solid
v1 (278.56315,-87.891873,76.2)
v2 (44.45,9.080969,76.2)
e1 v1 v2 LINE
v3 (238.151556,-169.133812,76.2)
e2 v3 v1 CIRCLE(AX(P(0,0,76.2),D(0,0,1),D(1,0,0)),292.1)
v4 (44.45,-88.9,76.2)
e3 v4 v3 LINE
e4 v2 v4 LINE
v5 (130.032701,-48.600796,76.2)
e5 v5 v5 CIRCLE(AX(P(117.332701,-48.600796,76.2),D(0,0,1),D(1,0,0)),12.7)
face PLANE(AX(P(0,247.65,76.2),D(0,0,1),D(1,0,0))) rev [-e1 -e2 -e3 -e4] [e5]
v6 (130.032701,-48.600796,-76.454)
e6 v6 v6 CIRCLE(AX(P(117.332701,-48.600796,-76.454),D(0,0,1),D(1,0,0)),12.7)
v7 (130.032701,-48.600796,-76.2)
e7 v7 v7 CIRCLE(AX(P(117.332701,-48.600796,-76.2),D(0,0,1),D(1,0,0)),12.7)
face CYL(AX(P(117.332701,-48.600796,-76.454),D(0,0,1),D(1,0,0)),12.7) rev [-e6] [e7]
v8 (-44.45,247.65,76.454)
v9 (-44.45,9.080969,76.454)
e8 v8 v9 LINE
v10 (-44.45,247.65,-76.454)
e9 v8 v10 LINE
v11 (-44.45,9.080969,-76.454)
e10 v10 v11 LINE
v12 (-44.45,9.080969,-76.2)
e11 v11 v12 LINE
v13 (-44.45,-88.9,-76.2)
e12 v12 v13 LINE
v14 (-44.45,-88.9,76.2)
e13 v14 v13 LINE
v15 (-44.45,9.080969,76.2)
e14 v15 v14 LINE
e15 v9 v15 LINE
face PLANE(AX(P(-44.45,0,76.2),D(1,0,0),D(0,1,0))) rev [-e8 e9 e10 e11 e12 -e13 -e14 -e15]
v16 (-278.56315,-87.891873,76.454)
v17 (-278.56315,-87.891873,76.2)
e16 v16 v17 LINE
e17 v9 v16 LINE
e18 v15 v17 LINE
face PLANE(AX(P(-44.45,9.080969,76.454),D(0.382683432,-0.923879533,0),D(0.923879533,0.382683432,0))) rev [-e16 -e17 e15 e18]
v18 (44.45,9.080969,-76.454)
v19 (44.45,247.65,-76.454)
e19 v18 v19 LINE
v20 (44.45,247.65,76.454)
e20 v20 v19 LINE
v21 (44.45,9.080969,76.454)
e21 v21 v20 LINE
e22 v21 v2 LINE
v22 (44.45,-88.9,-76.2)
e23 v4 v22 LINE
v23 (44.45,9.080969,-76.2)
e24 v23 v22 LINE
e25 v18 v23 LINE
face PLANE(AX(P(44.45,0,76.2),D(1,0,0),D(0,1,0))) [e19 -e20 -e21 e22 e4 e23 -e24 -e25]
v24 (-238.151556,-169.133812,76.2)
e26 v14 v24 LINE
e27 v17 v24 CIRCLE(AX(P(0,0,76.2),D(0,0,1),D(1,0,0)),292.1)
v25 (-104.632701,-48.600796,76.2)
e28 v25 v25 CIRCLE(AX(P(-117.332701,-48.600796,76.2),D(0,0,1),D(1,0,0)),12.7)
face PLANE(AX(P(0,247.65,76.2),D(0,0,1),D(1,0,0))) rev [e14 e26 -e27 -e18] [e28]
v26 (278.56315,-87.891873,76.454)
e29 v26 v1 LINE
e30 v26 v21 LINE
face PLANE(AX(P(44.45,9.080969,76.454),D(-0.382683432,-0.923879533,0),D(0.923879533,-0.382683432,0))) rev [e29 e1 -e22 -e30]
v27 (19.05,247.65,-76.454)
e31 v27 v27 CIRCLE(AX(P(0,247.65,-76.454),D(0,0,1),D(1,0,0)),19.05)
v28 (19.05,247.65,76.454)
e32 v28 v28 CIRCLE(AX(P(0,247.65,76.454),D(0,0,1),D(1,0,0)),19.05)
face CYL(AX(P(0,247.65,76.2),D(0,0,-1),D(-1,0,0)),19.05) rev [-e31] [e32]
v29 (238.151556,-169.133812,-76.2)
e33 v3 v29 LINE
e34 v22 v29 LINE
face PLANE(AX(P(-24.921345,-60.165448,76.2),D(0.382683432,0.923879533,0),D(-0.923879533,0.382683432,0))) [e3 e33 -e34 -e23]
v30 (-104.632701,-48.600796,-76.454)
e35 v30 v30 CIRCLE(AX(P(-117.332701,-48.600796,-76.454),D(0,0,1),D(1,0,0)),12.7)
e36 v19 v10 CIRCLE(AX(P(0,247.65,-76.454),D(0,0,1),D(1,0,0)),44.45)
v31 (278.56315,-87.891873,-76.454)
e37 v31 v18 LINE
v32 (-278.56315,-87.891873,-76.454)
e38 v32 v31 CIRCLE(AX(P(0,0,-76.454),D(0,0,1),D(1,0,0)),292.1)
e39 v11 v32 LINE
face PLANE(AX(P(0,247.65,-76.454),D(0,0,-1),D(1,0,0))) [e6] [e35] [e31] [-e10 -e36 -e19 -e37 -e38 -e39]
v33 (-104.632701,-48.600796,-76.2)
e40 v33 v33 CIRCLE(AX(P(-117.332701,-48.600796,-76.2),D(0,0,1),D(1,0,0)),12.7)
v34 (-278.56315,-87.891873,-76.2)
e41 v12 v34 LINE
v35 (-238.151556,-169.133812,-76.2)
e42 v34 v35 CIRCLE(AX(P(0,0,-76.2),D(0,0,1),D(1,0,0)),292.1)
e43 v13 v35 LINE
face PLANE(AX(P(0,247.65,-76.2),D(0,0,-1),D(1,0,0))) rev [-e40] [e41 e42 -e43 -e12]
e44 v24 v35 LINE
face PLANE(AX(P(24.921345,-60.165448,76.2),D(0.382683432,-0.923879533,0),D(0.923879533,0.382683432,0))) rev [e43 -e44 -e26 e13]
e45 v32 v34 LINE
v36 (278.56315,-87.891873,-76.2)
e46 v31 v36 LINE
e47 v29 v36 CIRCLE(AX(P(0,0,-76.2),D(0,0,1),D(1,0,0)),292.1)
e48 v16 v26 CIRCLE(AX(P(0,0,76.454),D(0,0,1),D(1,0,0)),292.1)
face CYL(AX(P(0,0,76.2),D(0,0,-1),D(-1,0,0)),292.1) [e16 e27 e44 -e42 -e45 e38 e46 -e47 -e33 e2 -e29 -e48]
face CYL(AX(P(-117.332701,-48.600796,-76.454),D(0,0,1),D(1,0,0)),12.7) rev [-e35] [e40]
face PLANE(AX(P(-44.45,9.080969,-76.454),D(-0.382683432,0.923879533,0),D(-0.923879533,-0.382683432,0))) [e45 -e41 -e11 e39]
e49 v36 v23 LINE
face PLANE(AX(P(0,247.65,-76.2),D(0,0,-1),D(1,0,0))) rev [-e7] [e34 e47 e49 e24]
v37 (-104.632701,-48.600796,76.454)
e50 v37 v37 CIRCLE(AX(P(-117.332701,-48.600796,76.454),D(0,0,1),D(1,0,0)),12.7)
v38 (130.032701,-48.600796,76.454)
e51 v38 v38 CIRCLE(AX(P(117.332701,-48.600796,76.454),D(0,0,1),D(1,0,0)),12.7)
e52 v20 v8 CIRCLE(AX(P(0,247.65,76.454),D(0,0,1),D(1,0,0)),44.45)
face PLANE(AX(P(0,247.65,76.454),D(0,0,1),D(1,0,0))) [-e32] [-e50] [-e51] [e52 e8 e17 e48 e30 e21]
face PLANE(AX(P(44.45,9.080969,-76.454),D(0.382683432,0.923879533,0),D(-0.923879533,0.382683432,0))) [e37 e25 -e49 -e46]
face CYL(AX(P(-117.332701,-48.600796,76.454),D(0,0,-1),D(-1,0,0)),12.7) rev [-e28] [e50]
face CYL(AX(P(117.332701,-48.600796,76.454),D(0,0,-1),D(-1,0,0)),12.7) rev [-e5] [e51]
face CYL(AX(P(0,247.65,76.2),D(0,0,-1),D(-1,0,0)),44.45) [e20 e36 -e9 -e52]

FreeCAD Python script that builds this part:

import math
import FreeCAD as App
import Part
import Sketcher
Q = App.Units.Quantity

doc = App.newDocument("Part")
params = doc.addObject("Spreadsheet::Sheet", "Params")
for row, (alias, value) in enumerate([
    ("sketch1_diameter", "1.5 in"),
    ("sketch1_radius", "11.5 in"),
    ("sketch1_radius2", "1.75 in"),
    ("sketch1_height", "13.25 in"),
    ("pad1_length", "6 in"),
    ("sketch2_diameter", "1 in"),
    ("sketch2_diameter2", "1.5 in"),
    ("sketch2_radius", "11.5 in"),
    ("sketch2_radius2", "1.75 in"),
    ("pad2_length", "0.01 in"),
], start=1):
    params.set(f"A{row}", alias)
    params.set(f"B{row}", "=" + value)
    params.setAlias(f"B{row}", alias)

body = doc.addObject("PartDesign::Body", "Body")

sketch1 = body.newObject("Sketcher::SketchObject", "Sketch")
sketch1.AttachmentSupport = (doc.getObject("XY_Plane"), [""])
sketch1.MapMode = "FlatFace"
sketch1.addGeometry([
    Part.LineSegment(App.Vector(-44, -89, 0), App.Vector(-238, -169, 0)),
    Part.ArcOfCircle(Part.Circle(App.Vector(0, 0, 0), App.Vector(0, 0, 1), 292), math.radians(-145), math.radians(-35)),
    Part.LineSegment(App.Vector(238, -169, 0), App.Vector(44, -89, 0)),
    Part.LineSegment(App.Vector(44, -89, 0), App.Vector(44, 248, 0)),
    Part.ArcOfCircle(Part.Circle(App.Vector(0, 248, 0), App.Vector(0, 0, 1), 44), math.radians(0), math.radians(180)),
    Part.LineSegment(App.Vector(-44, 248, 0), App.Vector(-44, -89, 0)),
    Part.Circle(App.Vector(0, 248, 0), App.Vector(0, 0, 1), 19),
], False)
sketch1.addConstraint([
    Sketcher.Constraint("Coincident", 0, 2, 1, 1),
    Sketcher.Constraint("Coincident", 1, 2, 2, 1),
    Sketcher.Constraint("Coincident", 2, 2, 3, 1),
    Sketcher.Constraint("Tangent", 3, 2, 4, 1),
    Sketcher.Constraint("Tangent", 4, 2, 5, 1),
    Sketcher.Constraint("Coincident", 5, 2, 0, 1),
    Sketcher.Constraint("Vertical", 3),
    Sketcher.Constraint("Vertical", 5),
    Sketcher.Constraint("Coincident", 1, 3, -1, 1),
    Sketcher.Constraint("Coincident", 6, 3, 4, 3),
    Sketcher.Constraint("Symmetric", 2, 2, 5, 2, -2),
    Sketcher.Constraint("Horizontal", 0, 2, 1, 2),
    Sketcher.Constraint("Diameter", 6, Q("1.5 in")),
    Sketcher.Constraint("Radius", 1, Q("11.5 in")),
    Sketcher.Constraint("Radius", 4, Q("1.75 in")),
    Sketcher.Constraint("DistanceY", 3, 1, 3, 2, Q("13.25 in")),
    Sketcher.Constraint("DistanceY", 2, 2, -1, 1, Q("3.5 in")),
    Sketcher.Constraint("Angle", 0, Q("-157.5 deg")),
])
sketch1.setExpression("Constraints[12]", "Params.sketch1_diameter")
sketch1.setExpression("Constraints[13]", "Params.sketch1_radius")
sketch1.setExpression("Constraints[14]", "Params.sketch1_radius2")
sketch1.setExpression("Constraints[15]", "Params.sketch1_height")
pad1 = body.newObject("PartDesign::Pad", "Pad")
pad1.Profile = sketch1
pad1.setExpression("Length", "Params.pad1_length")
pad1.Midplane = True

sketch2 = body.newObject("Sketcher::SketchObject", "Sketch001")
sketch2.AttachmentSupport = (doc.getObject("XY_Plane"), [""])
sketch2.MapMode = "FlatFace"
sketch2.AttachmentOffset = App.Placement(App.Vector(0, 0, 3 * 25.4), App.Rotation())
sketch2.addGeometry([
    Part.LineSegment(App.Vector(44, 9, 0), App.Vector(44, 248, 0)),
    Part.ArcOfCircle(Part.Circle(App.Vector(0, 248, 0), App.Vector(0, 0, 1), 44), math.radians(0), math.radians(180)),
    Part.LineSegment(App.Vector(-44, 248, 0), App.Vector(-44, 9, 0)),
    Part.LineSegment(App.Vector(-44, 9, 0), App.Vector(-279, -88, 0)),
    Part.ArcOfCircle(Part.Circle(App.Vector(0, 0, 0), App.Vector(0, 0, 1), 292), math.radians(-162), math.radians(-18)),
    Part.LineSegment(App.Vector(279, -88, 0), App.Vector(44, 9, 0)),
    Part.Circle(App.Vector(117, -49, 0), App.Vector(0, 0, 1), 13),
    Part.Circle(App.Vector(-117, -49, 0), App.Vector(0, 0, 1), 13),
    Part.Circle(App.Vector(0, 248, 0), App.Vector(0, 0, 1), 19),
], False)
sketch2.addConstraint([
    Sketcher.Constraint("Tangent", 0, 2, 1, 1),
    Sketcher.Constraint("Tangent", 1, 2, 2, 1),
    Sketcher.Constraint("Coincident", 2, 2, 3, 1),
    Sketcher.Constraint("Coincident", 3, 2, 4, 1),
    Sketcher.Constraint("Coincident", 4, 2, 5, 1),
    Sketcher.Constraint("Coincident", 5, 2, 0, 1),
    Sketcher.Constraint("Vertical", 0),
    Sketcher.Constraint("Vertical", 2),
    Sketcher.Constraint("Coincident", 4, 3, -1, 1),
    Sketcher.Constraint("Coincident", 8, 3, 1, 3),
    Sketcher.Constraint("Equal", 6, 7),
    Sketcher.Constraint("Symmetric", 6, 3, 7, 3, -2),
    Sketcher.Constraint("Symmetric", 2, 2, 5, 2, -2),
    Sketcher.Constraint("Horizontal", 3, 2, 4, 2),
    Sketcher.Constraint("Diameter", 6, Q("1 in")),
    Sketcher.Constraint("Diameter", 8, Q("1.5 in")),
    Sketcher.Constraint("Radius", 4, Q("11.5 in")),
    Sketcher.Constraint("Radius", 1, Q("1.75 in")),
    Sketcher.Constraint("Angle", 3, Q("-157.5 deg")),
    Sketcher.Constraint("DistanceY", -1, 1, 1, 3, Q("9.75 in")),
    Sketcher.Constraint("DistanceY", 0, 1, 0, 2, Q("238.569031 mm")),
    Sketcher.Constraint("DistanceX", -1, 1, 6, 3, Q("117.332701 mm")),
    Sketcher.Constraint("DistanceY", 6, 3, -1, 1, Q("48.600796 mm")),
])
sketch2.setExpression("Constraints[14]", "Params.sketch2_diameter")
sketch2.setExpression("Constraints[15]", "Params.sketch2_diameter2")
sketch2.setExpression("Constraints[16]", "Params.sketch2_radius")
sketch2.setExpression("Constraints[17]", "Params.sketch2_radius2")
pad2 = body.newObject("PartDesign::Pad", "Pad001")
pad2.Profile = sketch2
pad2.setExpression("Length", "Params.pad2_length")
doc.recompute()

mirrored = body.newObject("PartDesign::Mirrored", "Mirrored")
mirrored.Originals = [pad2]
mirrored.MirrorPlane = (doc.getObject("XY_Plane"), [""])
body.Tip = mirrored

doc.recompute()
